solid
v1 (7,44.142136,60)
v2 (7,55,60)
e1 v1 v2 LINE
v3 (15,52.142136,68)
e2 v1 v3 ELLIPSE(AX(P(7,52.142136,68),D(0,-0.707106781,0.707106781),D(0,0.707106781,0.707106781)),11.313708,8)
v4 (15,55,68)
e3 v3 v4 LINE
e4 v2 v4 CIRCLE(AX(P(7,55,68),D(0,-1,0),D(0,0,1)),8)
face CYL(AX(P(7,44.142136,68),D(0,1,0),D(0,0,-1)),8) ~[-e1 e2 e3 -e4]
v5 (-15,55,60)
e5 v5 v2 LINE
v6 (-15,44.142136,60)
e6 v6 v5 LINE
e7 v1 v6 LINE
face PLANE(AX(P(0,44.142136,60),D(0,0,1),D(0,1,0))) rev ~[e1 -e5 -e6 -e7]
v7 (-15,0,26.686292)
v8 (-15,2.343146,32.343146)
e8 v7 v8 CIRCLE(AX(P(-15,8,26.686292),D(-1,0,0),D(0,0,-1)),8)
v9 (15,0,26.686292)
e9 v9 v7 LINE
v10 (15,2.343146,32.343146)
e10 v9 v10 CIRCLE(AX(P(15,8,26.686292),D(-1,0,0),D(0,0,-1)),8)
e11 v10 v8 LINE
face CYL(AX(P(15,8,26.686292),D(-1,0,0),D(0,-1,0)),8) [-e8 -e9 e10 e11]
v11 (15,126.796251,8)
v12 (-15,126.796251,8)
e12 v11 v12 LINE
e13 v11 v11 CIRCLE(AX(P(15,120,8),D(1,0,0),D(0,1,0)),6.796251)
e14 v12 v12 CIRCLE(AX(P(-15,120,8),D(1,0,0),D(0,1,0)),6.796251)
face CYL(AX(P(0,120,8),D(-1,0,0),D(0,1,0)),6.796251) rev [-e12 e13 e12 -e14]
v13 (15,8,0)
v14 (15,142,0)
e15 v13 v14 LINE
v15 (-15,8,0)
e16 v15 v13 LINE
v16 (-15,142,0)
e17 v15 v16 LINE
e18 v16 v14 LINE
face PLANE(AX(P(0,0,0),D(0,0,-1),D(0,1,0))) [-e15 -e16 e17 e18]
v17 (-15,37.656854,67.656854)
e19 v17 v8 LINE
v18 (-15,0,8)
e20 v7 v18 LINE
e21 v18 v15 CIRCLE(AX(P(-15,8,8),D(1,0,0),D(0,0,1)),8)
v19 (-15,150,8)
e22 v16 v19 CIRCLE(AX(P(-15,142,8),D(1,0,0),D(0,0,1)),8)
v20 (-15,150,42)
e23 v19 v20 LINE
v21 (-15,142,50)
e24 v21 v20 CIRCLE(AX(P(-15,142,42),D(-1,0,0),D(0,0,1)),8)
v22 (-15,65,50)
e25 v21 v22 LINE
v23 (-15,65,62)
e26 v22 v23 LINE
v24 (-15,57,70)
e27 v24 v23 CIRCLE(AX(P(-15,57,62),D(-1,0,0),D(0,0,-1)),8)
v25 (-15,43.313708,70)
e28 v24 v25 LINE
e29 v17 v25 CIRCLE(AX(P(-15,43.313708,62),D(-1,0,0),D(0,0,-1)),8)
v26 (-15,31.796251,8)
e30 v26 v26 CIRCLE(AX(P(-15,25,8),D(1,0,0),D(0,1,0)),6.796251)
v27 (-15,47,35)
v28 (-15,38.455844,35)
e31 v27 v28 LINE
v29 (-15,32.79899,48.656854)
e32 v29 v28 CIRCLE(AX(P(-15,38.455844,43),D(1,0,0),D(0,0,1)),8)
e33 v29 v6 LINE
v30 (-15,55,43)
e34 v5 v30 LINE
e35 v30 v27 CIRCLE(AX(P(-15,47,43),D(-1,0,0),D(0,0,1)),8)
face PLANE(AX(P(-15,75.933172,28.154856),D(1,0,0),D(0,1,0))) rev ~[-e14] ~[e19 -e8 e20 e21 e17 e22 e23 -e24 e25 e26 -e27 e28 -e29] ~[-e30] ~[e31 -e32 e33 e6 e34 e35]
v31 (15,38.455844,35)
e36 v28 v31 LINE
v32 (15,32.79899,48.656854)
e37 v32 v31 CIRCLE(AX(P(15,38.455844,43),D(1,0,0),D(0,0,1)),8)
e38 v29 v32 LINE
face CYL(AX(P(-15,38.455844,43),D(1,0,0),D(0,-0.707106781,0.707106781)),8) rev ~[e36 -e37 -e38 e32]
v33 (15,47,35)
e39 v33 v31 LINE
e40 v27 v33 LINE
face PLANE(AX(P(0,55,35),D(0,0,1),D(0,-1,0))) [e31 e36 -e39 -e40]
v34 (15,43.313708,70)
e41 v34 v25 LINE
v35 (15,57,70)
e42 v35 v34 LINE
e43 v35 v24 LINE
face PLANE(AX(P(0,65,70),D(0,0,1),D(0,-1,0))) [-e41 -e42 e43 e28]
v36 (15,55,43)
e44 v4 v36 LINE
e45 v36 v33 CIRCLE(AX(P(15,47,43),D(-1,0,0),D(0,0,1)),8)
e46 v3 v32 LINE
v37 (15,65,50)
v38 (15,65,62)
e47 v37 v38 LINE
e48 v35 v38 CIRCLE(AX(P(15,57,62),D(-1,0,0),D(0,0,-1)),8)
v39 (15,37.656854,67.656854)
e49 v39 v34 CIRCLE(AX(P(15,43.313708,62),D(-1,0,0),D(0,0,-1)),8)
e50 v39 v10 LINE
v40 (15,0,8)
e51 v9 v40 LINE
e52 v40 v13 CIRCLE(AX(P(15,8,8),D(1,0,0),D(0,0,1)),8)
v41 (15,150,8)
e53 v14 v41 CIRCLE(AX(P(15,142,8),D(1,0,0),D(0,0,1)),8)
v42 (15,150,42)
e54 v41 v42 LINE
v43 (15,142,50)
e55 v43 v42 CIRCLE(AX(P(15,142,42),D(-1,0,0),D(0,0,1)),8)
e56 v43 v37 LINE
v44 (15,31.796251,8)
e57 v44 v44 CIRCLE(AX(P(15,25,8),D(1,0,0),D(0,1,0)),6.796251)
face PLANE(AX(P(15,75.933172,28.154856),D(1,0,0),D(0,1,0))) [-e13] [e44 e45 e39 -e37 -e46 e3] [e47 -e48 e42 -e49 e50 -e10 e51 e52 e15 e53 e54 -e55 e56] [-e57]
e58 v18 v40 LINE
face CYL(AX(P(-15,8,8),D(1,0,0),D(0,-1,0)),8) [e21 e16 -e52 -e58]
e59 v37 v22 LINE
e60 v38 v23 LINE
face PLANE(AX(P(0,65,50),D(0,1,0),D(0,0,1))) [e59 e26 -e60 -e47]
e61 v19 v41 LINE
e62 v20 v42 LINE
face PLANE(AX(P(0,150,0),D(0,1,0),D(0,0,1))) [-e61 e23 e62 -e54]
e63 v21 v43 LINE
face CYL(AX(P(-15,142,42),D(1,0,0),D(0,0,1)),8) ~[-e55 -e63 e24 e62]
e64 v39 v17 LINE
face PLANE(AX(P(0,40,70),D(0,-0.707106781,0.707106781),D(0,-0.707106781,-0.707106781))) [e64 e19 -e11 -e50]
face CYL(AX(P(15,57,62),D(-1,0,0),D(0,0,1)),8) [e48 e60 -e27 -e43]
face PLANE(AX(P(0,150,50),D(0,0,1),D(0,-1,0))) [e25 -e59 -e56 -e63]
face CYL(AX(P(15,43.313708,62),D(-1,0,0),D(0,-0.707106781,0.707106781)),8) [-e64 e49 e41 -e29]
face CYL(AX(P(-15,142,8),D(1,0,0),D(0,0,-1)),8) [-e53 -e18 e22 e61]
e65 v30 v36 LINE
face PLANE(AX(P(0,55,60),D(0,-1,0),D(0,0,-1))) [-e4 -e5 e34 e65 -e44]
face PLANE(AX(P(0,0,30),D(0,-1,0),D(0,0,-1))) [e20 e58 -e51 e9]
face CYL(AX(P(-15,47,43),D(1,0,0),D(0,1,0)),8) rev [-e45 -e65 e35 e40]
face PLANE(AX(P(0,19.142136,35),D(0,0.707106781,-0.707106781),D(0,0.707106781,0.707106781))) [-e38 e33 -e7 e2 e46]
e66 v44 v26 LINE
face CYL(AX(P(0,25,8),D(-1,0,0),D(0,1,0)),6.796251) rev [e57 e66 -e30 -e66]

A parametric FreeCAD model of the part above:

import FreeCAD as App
import Part
import Sketcher


def edges_at(feature, points):
    """Names of the edges that pass closest to the given points."""
    edges = feature.Shape.Edges
    near = lambda p: min(range(len(edges)), key=lambda i: edges[i].distToShape(Part.Vertex(*p))[0])
    return sorted({f"Edge{near(p) + 1}" for p in points})

doc = App.newDocument("Part")
body = doc.addObject("PartDesign::Body", "Body")

sketch1 = doc.addObject("Sketcher::SketchObject", "Sketch")
body.addObject(sketch1)
sketch1.AttachmentSupport = (doc.YZ_Plane, [""])
sketch1.MapMode = "FlatFace"
sketch1.addGeometry(Part.LineSegment(App.Vector(0, 30, 0), App.Vector(0, 0, 0)), False)
sketch1.addGeometry(Part.LineSegment(App.Vector(0, 0, 0), App.Vector(150, 0, 0)), False)
sketch1.addGeometry(Part.LineSegment(App.Vector(150, 0, 0), App.Vector(150, 50, 0)), False)
sketch1.addGeometry(Part.LineSegment(App.Vector(150, 50, 0), App.Vector(65, 50, 0)), False)
sketch1.addGeometry(Part.LineSegment(App.Vector(65, 50, 0), App.Vector(65, 70, 0)), False)
sketch1.addGeometry(Part.LineSegment(App.Vector(65, 70, 0), App.Vector(40, 70, 0)), False)
sketch1.addGeometry(Part.LineSegment(App.Vector(40, 70, 0), App.Vector(0, 30, 0)), False)
sketch1.addGeometry(Part.Circle(App.Vector(25, 8, 0), App.Vector(0, 0, 1), 7), False)
sketch1.addGeometry(Part.Circle(App.Vector(120, 8, 0), App.Vector(0, 0, 1), 7), False)
sketch1.addGeometry(Part.LineSegment(App.Vector(19, 35, 0), App.Vector(44, 60, 0)), False)
sketch1.addGeometry(Part.LineSegment(App.Vector(44, 60, 0), App.Vector(55, 60, 0)), False)
sketch1.addGeometry(Part.LineSegment(App.Vector(55, 60, 0), App.Vector(55, 35, 0)), False)
sketch1.addGeometry(Part.LineSegment(App.Vector(55, 35, 0), App.Vector(19, 35, 0)), False)
sketch1.addConstraint(Sketcher.Constraint("Coincident", 0, 2, 1, 1))
sketch1.addConstraint(Sketcher.Constraint("Coincident", 1, 2, 2, 1))
sketch1.addConstraint(Sketcher.Constraint("Coincident", 2, 2, 3, 1))
sketch1.addConstraint(Sketcher.Constraint("Coincident", 3, 2, 4, 1))
sketch1.addConstraint(Sketcher.Constraint("Coincident", 4, 2, 5, 1))
sketch1.addConstraint(Sketcher.Constraint("Coincident", 5, 2, 6, 1))
sketch1.addConstraint(Sketcher.Constraint("Coincident", 6, 2, 0, 1))
sketch1.addConstraint(Sketcher.Constraint("Coincident", 9, 2, 10, 1))
sketch1.addConstraint(Sketcher.Constraint("Coincident", 10, 2, 11, 1))
sketch1.addConstraint(Sketcher.Constraint("Coincident", 11, 2, 12, 1))
sketch1.addConstraint(Sketcher.Constraint("Coincident", 12, 2, 9, 1))
sketch1.addConstraint(Sketcher.Constraint("Vertical", 0))
sketch1.addConstraint(Sketcher.Constraint("Horizontal", 1))
sketch1.addConstraint(Sketcher.Constraint("Vertical", 2))
sketch1.addConstraint(Sketcher.Constraint("Horizontal", 3))
sketch1.addConstraint(Sketcher.Constraint("Vertical", 4))
sketch1.addConstraint(Sketcher.Constraint("Horizontal", 5))
sketch1.addConstraint(Sketcher.Constraint("Horizontal", 10))
sketch1.addConstraint(Sketcher.Constraint("Vertical", 11))
sketch1.addConstraint(Sketcher.Constraint("Horizontal", 12))
sketch1.addConstraint(Sketcher.Constraint("Coincident", 0, 2, -1, 1))
sketch1.addConstraint(Sketcher.Constraint("Equal", 7, 8))
sketch1.addConstraint(Sketcher.Constraint("Parallel", 6, 9))
sketch1.addConstraint(Sketcher.Constraint("Horizontal", 7, 3, 8, 3))
sketch1.addConstraint(Sketcher.Constraint("Equal", 5, 11))
sketch1.addConstraint(Sketcher.Constraint("DistanceX", 1, 1, 1, 2, 150.0))
sketch1.addConstraint(Sketcher.Constraint("DistanceX", 3, 2, 3, 1, 85.0))
sketch1.addConstraint(Sketcher.Constraint("DistanceX", 5, 2, 5, 1, 25.0))
sketch1.addConstraint(Sketcher.Constraint("DistanceY", 0, 2, 0, 1, 30.0))
sketch1.addConstraint(Sketcher.Constraint("DistanceY", 2, 1, 2, 2, 50.0))
sketch1.addConstraint(Sketcher.Constraint("DistanceY", 4, 1, 4, 2, 20.0))
sketch1.addConstraint(Sketcher.Constraint("DistanceX", -1, 1, 7, 3, 25.0))
sketch1.addConstraint(Sketcher.Constraint("DistanceY", -1, 1, 7, 3, 8.0))
sketch1.addConstraint(Sketcher.Constraint("DistanceX", -1, 1, 8, 3, 120.0))
sketch1.addConstraint(Sketcher.Constraint("DistanceY", -1, 1, 9, 2, 60.0))
sketch1.addConstraint(Sketcher.Constraint("DistanceX", -1, 1, 10, 2, 55.0))
sketch1.addConstraint(Sketcher.Constraint("Diameter", 7, 13.592502))
sketch1.addConstraint(Sketcher.Constraint("DistanceX", 10, 1, 10, 2, 10.857864))
pad1 = doc.addObject("PartDesign::Pad", "Pad")
body.addObject(pad1)
pad1.Profile = sketch1
pad1.Length = 30
pad1.Midplane = True
doc.recompute()

fillet = doc.addObject("PartDesign::Fillet", "Fillet")
body.addObject(fillet)
fillet.Base = (pad1, edges_at(pad1, [(0, 40, 70)]))
fillet.Radius = 8
doc.recompute()

fillet2 = doc.addObject("PartDesign::Fillet", "Fillet001")
body.addObject(fillet2)
fillet2.Base = (fillet, edges_at(fillet, [(0, 65, 70)]))
fillet2.Radius = 8
doc.recompute()

fillet3 = doc.addObject("PartDesign::Fillet", "Fillet002")
body.addObject(fillet3)
fillet3.Base = (fillet2, edges_at(fillet2, [(0, 150, 50)]))
fillet3.Radius = 8
doc.recompute()

fillet4 = doc.addObject("PartDesign::Fillet", "Fillet003")
body.addObject(fillet4)
fillet4.Base = (fillet3, edges_at(fillet3, [(0, 0, 30)]))
fillet4.Radius = 8
doc.recompute()

fillet5 = doc.addObject("PartDesign::Fillet", "Fillet004")
body.addObject(fillet5)
fillet5.Base = (fillet4, edges_at(fillet4, [(0, 0, 0)]))
fillet5.Radius = 8
doc.recompute()

fillet6 = doc.addObject("PartDesign::Fillet", "Fillet005")
body.addObject(fillet6)
fillet6.Base = (fillet5, edges_at(fillet5, [(0, 150, 0)]))
fillet6.Radius = 8
doc.recompute()

fillet7 = doc.addObject("PartDesign::Fillet", "Fillet006")
body.addObject(fillet7)
fillet7.Base = (fillet6, edges_at(fillet6, [(0, 19.142, 35)]))
fillet7.Radius = 8
doc.recompute()

fillet8 = doc.addObject("PartDesign::Fillet", "Fillet007")
body.addObject(fillet8)
fillet8.Base = (fillet7, edges_at(fillet7, [(15, 49.571, 60)]))
fillet8.Radius = 8
doc.recompute()

fillet9 = doc.addObject("PartDesign::Fillet", "Fillet008")
body.addObject(fillet9)
fillet9.Base = (fillet8, edges_at(fillet8, [(0, 55, 35)]))
fillet9.Radius = 8

doc.recompute()
